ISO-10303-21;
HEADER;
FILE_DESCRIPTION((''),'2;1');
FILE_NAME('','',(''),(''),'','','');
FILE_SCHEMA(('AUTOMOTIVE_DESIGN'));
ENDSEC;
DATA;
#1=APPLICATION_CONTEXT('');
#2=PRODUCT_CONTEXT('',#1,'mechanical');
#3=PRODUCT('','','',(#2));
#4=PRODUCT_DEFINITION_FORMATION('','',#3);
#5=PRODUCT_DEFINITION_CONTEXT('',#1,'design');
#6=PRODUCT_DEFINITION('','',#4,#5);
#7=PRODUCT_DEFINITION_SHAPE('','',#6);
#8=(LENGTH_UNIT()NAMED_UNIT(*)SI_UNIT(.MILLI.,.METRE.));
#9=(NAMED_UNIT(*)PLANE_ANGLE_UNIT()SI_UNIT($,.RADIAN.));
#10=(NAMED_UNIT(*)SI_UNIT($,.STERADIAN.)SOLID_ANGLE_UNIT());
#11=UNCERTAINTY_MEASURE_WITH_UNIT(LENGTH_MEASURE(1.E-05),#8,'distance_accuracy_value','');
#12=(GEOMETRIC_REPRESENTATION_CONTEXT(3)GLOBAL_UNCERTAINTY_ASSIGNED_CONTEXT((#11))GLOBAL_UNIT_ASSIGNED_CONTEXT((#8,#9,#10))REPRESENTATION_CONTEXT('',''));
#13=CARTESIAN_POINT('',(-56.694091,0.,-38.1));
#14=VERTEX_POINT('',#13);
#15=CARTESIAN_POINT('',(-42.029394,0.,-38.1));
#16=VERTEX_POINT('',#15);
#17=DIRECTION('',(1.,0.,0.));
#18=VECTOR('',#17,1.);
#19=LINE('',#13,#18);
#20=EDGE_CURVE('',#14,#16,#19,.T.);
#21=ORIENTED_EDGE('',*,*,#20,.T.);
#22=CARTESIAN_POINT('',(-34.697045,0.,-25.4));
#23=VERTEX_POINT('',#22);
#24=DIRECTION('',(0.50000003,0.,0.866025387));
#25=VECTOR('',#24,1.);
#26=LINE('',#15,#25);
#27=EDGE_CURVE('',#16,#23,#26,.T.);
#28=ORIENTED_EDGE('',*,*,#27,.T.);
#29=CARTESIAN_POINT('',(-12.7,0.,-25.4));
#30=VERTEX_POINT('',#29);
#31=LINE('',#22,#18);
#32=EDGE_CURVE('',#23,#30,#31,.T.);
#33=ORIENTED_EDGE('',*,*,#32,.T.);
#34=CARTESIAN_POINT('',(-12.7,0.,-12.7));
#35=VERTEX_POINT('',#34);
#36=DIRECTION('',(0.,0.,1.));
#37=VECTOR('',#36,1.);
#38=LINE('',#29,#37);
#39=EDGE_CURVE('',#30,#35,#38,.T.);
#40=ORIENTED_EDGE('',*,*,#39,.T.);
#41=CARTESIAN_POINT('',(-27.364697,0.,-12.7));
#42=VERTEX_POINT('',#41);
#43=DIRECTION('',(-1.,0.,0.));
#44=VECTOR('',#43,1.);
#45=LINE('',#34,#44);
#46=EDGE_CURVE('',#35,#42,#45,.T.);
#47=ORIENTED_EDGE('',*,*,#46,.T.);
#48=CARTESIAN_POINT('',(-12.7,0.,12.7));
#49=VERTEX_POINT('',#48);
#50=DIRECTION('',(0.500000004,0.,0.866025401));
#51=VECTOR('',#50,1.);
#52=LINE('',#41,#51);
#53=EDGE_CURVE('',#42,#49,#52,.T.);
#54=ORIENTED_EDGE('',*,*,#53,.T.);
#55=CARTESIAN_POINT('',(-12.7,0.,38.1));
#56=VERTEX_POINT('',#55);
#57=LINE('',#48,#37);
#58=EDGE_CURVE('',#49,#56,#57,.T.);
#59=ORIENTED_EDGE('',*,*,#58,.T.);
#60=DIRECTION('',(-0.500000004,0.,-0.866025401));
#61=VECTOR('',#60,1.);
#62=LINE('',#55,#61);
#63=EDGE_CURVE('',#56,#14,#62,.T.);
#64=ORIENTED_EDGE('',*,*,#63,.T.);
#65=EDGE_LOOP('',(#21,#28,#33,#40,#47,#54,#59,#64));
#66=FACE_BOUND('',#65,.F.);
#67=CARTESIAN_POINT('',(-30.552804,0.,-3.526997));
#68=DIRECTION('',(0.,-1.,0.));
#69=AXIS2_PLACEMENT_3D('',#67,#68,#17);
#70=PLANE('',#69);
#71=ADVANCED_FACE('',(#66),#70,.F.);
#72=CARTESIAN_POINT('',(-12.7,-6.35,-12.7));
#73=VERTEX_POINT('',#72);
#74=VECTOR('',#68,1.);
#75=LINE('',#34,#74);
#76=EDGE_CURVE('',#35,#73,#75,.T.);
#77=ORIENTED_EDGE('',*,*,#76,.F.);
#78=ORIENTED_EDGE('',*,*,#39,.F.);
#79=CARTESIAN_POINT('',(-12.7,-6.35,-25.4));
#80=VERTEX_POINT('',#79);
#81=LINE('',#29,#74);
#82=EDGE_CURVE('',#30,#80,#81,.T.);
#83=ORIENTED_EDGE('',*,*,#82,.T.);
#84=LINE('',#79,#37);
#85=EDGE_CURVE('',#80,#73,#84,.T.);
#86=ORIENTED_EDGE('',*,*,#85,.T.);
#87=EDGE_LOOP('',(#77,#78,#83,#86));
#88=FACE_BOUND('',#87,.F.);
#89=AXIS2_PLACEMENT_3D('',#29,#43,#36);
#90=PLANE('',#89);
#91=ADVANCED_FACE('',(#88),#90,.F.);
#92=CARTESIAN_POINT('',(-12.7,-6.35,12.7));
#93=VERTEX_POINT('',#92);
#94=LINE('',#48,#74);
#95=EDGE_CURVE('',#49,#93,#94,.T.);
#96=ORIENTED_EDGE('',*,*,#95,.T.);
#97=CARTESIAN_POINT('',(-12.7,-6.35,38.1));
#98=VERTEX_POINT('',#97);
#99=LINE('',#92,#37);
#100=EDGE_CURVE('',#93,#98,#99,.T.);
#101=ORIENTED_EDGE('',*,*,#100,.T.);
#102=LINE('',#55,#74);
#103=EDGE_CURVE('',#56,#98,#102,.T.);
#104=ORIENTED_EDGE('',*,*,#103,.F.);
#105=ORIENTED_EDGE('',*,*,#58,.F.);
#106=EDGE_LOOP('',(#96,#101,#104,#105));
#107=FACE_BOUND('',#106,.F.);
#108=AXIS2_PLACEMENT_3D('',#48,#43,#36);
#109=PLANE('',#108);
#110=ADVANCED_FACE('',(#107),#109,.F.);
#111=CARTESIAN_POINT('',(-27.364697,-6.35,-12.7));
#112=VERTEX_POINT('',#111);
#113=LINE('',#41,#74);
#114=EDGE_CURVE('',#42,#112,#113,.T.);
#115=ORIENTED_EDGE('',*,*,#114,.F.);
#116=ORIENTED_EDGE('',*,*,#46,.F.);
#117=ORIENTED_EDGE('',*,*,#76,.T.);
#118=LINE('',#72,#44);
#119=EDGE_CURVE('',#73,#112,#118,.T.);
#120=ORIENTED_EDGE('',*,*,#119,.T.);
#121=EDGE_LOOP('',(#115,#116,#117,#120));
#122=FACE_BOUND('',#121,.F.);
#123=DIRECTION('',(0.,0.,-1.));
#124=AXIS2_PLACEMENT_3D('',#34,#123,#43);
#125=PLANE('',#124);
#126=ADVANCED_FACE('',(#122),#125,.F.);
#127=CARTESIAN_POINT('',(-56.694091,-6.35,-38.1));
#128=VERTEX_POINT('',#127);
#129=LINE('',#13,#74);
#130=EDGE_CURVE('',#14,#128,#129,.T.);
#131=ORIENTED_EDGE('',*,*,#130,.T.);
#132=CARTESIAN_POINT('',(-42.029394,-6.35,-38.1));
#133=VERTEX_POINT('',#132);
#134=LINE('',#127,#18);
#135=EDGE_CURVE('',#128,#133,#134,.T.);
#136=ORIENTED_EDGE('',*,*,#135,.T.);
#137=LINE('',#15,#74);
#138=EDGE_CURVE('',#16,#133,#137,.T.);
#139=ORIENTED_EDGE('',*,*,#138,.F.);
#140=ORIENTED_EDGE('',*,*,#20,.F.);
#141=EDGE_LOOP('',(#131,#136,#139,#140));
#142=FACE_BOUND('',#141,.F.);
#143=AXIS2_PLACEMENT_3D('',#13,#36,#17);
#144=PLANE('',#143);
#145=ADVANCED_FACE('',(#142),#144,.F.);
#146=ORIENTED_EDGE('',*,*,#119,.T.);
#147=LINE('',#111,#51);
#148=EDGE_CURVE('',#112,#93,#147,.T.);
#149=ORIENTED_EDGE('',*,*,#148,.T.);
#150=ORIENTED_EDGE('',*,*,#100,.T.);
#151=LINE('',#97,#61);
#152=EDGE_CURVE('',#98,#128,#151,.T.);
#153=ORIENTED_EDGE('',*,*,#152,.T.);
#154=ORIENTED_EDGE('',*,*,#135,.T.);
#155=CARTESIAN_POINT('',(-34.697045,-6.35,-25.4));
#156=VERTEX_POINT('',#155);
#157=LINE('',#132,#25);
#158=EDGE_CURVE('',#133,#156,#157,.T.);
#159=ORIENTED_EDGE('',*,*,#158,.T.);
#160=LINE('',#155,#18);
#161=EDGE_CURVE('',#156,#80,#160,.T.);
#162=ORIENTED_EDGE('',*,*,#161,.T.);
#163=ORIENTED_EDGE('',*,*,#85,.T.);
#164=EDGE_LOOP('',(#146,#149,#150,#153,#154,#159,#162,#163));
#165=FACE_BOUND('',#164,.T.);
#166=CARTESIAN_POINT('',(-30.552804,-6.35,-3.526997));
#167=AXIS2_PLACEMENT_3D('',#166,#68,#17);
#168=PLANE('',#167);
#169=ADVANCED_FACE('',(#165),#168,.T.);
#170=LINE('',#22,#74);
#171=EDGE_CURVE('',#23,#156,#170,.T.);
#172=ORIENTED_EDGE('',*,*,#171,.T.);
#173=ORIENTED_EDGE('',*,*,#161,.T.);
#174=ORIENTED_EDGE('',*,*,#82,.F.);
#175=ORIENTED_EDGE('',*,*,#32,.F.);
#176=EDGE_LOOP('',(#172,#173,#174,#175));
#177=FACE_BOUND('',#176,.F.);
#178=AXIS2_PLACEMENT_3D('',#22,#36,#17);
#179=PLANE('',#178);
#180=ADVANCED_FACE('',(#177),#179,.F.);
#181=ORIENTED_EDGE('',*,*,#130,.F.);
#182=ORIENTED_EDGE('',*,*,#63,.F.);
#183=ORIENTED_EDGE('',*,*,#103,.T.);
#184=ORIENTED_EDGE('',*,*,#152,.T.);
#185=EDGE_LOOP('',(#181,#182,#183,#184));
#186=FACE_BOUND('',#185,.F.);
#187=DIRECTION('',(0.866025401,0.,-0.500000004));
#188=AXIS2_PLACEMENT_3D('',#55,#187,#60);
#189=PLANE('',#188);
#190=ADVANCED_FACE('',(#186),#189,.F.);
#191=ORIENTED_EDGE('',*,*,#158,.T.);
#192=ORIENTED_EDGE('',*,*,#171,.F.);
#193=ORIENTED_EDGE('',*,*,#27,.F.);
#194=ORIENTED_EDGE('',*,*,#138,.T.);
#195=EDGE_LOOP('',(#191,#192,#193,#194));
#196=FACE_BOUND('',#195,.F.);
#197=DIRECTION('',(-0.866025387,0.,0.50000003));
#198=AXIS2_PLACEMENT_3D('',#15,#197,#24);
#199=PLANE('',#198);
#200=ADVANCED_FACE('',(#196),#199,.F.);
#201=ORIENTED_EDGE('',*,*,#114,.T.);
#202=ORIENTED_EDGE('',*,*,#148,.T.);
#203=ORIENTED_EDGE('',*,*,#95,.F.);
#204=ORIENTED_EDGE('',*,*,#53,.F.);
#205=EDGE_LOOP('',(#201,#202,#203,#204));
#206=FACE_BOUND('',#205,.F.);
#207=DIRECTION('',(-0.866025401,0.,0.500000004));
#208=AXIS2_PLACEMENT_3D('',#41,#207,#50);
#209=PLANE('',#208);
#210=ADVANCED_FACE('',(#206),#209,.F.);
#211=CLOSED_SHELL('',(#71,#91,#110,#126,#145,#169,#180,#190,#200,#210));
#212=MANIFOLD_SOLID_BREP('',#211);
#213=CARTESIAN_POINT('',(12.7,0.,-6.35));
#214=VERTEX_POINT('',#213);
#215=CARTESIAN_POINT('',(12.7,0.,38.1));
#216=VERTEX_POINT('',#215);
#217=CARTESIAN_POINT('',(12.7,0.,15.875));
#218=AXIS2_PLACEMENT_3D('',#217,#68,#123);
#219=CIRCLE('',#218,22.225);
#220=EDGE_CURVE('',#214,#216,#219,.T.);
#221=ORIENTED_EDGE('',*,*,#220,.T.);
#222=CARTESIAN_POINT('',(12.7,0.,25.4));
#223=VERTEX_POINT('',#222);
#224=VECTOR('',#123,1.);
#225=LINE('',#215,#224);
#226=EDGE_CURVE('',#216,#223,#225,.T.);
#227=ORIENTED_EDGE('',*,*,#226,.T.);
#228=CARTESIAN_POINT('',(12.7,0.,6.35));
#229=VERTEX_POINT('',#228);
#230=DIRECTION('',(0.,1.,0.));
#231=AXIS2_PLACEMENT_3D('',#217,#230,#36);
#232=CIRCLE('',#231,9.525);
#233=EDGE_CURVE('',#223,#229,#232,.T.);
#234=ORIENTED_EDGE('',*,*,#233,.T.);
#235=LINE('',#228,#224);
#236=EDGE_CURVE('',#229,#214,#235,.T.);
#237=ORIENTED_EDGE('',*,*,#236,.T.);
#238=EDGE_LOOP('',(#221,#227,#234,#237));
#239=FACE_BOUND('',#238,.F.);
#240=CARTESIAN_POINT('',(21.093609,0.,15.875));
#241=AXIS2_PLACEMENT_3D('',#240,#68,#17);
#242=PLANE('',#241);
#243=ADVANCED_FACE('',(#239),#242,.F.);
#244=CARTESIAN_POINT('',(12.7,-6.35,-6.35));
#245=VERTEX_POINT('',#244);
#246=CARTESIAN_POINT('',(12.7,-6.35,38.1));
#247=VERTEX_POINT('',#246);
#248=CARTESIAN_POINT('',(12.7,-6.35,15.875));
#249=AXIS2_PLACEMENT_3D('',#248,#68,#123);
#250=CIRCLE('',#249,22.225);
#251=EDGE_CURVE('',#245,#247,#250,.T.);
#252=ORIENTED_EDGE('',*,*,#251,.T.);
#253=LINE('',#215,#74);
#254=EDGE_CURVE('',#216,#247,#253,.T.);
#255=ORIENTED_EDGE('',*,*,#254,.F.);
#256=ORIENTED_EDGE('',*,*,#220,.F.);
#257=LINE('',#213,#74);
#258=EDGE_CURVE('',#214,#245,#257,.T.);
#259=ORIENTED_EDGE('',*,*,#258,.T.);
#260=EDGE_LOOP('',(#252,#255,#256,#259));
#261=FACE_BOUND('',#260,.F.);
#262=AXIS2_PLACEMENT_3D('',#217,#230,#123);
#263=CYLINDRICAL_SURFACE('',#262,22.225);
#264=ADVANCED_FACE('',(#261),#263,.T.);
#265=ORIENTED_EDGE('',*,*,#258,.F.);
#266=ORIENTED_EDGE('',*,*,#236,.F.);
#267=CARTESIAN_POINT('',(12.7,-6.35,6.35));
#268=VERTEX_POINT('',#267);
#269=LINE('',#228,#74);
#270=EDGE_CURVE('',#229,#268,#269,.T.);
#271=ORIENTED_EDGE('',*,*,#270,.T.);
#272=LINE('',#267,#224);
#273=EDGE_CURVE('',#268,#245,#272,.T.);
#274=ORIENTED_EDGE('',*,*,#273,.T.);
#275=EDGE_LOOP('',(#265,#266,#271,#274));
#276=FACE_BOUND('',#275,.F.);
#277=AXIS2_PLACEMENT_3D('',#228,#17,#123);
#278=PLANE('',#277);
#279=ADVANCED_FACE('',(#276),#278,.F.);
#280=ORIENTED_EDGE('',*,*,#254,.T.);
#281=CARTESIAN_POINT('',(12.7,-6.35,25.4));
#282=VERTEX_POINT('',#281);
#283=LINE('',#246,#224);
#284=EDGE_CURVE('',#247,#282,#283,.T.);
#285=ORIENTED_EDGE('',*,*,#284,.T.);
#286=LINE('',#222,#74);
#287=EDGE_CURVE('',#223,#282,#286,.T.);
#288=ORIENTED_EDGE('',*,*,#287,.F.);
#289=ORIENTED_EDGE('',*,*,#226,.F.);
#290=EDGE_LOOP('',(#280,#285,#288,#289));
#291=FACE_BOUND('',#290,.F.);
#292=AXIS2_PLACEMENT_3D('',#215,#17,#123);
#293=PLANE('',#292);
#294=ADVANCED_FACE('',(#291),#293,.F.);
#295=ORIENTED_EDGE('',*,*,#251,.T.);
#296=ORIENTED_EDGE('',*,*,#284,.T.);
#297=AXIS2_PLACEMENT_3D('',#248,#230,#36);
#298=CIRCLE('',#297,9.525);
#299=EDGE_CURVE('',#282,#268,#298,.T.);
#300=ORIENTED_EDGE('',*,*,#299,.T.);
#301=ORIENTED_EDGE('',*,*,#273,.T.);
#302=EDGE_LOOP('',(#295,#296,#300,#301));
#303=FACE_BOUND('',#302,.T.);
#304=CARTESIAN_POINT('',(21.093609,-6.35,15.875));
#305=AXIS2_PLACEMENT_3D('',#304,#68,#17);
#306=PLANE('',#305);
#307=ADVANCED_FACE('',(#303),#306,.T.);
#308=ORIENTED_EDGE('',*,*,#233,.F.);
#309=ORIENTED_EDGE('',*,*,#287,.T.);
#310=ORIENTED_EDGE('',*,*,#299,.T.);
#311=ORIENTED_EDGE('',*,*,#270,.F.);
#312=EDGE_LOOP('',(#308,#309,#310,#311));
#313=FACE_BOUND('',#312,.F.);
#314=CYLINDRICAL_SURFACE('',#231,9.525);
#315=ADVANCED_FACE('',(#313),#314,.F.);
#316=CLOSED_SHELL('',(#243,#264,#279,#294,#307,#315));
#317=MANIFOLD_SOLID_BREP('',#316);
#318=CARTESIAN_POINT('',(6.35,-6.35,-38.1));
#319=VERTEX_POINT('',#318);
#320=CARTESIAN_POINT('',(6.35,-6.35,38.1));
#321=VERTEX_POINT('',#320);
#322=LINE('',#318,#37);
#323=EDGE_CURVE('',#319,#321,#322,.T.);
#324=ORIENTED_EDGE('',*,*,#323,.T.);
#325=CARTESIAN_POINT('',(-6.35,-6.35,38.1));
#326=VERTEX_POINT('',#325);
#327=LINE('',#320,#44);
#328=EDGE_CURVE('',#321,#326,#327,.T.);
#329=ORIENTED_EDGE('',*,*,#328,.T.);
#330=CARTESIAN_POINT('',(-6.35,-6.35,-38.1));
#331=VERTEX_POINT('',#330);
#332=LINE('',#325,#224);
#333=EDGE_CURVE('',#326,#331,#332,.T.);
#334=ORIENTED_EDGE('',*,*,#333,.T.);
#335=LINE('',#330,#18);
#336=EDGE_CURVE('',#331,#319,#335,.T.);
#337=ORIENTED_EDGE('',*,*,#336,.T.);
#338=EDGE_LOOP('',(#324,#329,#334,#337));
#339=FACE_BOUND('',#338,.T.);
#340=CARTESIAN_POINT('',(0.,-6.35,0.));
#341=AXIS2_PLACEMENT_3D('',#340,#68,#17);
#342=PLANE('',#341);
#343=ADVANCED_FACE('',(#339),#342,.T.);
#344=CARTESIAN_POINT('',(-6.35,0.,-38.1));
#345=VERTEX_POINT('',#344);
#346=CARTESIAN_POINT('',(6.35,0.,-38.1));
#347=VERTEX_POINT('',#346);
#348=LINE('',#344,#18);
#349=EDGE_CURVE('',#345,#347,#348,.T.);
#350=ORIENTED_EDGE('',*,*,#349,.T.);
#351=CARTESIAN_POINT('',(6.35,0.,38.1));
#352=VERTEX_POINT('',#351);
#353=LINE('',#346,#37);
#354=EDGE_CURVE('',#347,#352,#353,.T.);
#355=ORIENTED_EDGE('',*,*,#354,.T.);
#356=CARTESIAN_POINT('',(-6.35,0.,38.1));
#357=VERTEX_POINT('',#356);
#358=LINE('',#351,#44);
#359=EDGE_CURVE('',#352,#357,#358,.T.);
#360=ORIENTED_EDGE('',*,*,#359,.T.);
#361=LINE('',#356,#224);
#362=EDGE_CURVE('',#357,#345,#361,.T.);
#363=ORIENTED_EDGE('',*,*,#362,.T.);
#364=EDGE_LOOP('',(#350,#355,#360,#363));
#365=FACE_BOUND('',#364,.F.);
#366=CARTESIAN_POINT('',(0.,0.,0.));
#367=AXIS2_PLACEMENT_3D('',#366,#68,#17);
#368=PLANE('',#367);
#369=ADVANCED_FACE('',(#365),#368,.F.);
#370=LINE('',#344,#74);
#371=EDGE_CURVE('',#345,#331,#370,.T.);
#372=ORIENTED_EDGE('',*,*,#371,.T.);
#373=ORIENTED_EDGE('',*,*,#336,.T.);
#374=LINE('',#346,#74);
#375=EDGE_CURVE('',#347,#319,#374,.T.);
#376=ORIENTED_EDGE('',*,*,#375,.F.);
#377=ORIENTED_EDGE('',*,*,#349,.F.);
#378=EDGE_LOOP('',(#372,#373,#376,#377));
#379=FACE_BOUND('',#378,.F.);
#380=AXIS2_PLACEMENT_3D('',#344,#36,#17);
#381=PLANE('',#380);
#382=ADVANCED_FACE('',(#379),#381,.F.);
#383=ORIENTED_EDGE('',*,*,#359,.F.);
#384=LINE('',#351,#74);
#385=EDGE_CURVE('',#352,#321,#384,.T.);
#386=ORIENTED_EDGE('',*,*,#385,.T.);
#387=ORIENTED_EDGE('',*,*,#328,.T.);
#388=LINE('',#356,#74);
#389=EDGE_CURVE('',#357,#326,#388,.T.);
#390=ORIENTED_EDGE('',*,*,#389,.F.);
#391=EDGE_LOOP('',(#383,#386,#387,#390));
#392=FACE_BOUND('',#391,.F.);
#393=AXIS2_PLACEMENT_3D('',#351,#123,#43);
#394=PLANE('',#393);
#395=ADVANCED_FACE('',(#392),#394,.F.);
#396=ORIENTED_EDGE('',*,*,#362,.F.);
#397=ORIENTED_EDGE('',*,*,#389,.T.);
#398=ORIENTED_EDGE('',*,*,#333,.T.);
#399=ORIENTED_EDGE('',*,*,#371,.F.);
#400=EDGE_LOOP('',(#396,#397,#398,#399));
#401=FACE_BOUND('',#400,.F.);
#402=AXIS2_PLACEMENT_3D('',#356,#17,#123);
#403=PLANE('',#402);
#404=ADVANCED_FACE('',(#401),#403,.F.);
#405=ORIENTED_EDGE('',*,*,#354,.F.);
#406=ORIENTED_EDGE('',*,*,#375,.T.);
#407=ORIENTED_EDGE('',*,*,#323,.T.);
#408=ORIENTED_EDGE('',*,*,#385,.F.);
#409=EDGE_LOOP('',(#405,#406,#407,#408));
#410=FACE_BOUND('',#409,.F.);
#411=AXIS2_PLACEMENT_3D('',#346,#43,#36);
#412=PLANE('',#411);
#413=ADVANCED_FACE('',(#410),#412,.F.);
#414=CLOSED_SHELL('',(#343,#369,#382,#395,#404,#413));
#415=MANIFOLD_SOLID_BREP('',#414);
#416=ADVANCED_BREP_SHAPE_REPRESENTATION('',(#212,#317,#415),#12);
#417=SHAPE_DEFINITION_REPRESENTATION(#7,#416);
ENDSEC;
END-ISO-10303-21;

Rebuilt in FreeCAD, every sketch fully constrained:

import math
import FreeCAD as App
import Part
import Sketcher

V = App.Vector
Q = App.Units.Quantity


def add_polygon(sketch, points):
    """Adds a closed chain of lines whose ends are joined by coincident constraints."""
    first, n = sketch.GeometryCount, len(points)
    for a, b in zip(points, points[1:] + points[:1]):
        sketch.addGeometry(Part.LineSegment(App.Vector(*a, 0), App.Vector(*b, 0)), False)
    for i in range(n):
        sketch.addConstraint(Sketcher.Constraint("Coincident", first + i, 2, first + (i + 1) % n, 1))

doc = App.newDocument("Part")
params = doc.addObject("Spreadsheet::Sheet", "Params")
for row, (alias, value) in enumerate([
    ("sketch1_height", "1 in"),
    ("sketch1_height2", "3 in"),
    ("sketch1_width", "0.5 in"),
    ("sketch1_radius", "0.875 in"),
    ("pad1_length", "0.25 in"),
], start=1):
    params.set(f"A{row}", alias)
    params.set(f"B{row}", "=" + value)
    params.setAlias(f"B{row}", alias)

body = doc.addObject("PartDesign::Body", "Body")
body.AllowCompound = True

# Sketch on XZ plane
sketch1 = body.newObject("Sketcher::SketchObject", "Sketch")
sketch1.AttachmentSupport = (doc.getObject("XZ_Plane"), [""])
sketch1.MapMode = "FlatFace"
add_polygon(sketch1, [(-13, 13), (-13, 38), (-57, -38), (-42, -38), (-35, -25), (-13, -25), (-13, -13), (-27, -13)])  # lines 0-7
add_polygon(sketch1, [(6, 38), (-6, 38), (-6, -38), (6, -38)])  # lines 8-11
sketch1.addGeometry(Part.ArcOfCircle(Part.Circle(V(13, 16, 0), V(0, 0, 1), 22), math.radians(-90), math.radians(90)), False)  # 12
sketch1.addGeometry(Part.LineSegment(V(13, 38, 0), V(13, 25, 0)), False)  # 13
sketch1.addGeometry(Part.ArcOfCircle(Part.Circle(V(13, 16, 0), V(0, 0, 1), 10), math.radians(-90), math.radians(90)), False)  # 14
sketch1.addGeometry(Part.LineSegment(V(13, 6, 0), V(13, -6, 0)), False)  # 15
sketch1.addConstraint([
    Sketcher.Constraint("Coincident", 12, 2, 13, 1),
    Sketcher.Constraint("Coincident", 13, 2, 14, 2),
    Sketcher.Constraint("Coincident", 14, 1, 15, 1),
    Sketcher.Constraint("Coincident", 15, 2, 12, 1),
    Sketcher.Constraint("Vertical", 0),
    Sketcher.Constraint("Horizontal", 2),
    Sketcher.Constraint("Horizontal", 4),
    Sketcher.Constraint("Vertical", 5),
    Sketcher.Constraint("Horizontal", 6),
    Sketcher.Constraint("Horizontal", 8),
    Sketcher.Constraint("Vertical", 9),
    Sketcher.Constraint("Horizontal", 10),
    Sketcher.Constraint("Vertical", 11),
    Sketcher.Constraint("Vertical", 13),
    Sketcher.Constraint("Vertical", 15),
    Sketcher.Constraint("Coincident", 14, 3, 12, 3),
    Sketcher.Constraint("Symmetric", 8, 2, 10, 2, -1, 1),
    Sketcher.Constraint("Symmetric", 4, 2, 13, 2, -1, 1),
    Sketcher.Constraint("Symmetric", 0, 2, 12, 2, -2),
    Sketcher.Constraint("Parallel", 1, 3),
    Sketcher.Constraint("Parallel", 3, 7),
    Sketcher.Constraint("Horizontal", 0, 2, 8, 2),
    Sketcher.Constraint("Horizontal", 2, 2, 9, 2),
    Sketcher.Constraint("Vertical", 14, 3, 12, 2),
    Sketcher.Constraint("Vertical", 13, 2, 14, 1),
    Sketcher.Constraint("Equal", 2, 6),
    Sketcher.Constraint("Equal", 10, 5),
    Sketcher.Constraint("Equal", 5, 13),
    Sketcher.Constraint("DistanceY", 0, 1, 0, 2, Q("1 in")),
    Sketcher.Constraint("DistanceY", 9, 2, 9, 1, Q("3 in")),
    Sketcher.Constraint("DistanceX", 8, 2, 8, 1, Q("0.5 in")),
    Sketcher.Constraint("Angle", 1, Q("-120 deg")),
    Sketcher.Constraint("Radius", 12, Q("0.875 in")),
    Sketcher.Constraint("DistanceX", 0, 2, 12, 3, Q("1 in")),
])
sketch1.setExpression("Constraints[40]", "Params.sketch1_height")
sketch1.setExpression("Constraints[41]", "Params.sketch1_height2")
sketch1.setExpression("Constraints[42]", "Params.sketch1_width")
sketch1.setExpression("Constraints[44]", "Params.sketch1_radius")
pad1 = body.newObject("PartDesign::Pad", "Pad")
pad1.Profile = sketch1
pad1.setExpression("Length", "Params.pad1_length")

doc.recompute()
